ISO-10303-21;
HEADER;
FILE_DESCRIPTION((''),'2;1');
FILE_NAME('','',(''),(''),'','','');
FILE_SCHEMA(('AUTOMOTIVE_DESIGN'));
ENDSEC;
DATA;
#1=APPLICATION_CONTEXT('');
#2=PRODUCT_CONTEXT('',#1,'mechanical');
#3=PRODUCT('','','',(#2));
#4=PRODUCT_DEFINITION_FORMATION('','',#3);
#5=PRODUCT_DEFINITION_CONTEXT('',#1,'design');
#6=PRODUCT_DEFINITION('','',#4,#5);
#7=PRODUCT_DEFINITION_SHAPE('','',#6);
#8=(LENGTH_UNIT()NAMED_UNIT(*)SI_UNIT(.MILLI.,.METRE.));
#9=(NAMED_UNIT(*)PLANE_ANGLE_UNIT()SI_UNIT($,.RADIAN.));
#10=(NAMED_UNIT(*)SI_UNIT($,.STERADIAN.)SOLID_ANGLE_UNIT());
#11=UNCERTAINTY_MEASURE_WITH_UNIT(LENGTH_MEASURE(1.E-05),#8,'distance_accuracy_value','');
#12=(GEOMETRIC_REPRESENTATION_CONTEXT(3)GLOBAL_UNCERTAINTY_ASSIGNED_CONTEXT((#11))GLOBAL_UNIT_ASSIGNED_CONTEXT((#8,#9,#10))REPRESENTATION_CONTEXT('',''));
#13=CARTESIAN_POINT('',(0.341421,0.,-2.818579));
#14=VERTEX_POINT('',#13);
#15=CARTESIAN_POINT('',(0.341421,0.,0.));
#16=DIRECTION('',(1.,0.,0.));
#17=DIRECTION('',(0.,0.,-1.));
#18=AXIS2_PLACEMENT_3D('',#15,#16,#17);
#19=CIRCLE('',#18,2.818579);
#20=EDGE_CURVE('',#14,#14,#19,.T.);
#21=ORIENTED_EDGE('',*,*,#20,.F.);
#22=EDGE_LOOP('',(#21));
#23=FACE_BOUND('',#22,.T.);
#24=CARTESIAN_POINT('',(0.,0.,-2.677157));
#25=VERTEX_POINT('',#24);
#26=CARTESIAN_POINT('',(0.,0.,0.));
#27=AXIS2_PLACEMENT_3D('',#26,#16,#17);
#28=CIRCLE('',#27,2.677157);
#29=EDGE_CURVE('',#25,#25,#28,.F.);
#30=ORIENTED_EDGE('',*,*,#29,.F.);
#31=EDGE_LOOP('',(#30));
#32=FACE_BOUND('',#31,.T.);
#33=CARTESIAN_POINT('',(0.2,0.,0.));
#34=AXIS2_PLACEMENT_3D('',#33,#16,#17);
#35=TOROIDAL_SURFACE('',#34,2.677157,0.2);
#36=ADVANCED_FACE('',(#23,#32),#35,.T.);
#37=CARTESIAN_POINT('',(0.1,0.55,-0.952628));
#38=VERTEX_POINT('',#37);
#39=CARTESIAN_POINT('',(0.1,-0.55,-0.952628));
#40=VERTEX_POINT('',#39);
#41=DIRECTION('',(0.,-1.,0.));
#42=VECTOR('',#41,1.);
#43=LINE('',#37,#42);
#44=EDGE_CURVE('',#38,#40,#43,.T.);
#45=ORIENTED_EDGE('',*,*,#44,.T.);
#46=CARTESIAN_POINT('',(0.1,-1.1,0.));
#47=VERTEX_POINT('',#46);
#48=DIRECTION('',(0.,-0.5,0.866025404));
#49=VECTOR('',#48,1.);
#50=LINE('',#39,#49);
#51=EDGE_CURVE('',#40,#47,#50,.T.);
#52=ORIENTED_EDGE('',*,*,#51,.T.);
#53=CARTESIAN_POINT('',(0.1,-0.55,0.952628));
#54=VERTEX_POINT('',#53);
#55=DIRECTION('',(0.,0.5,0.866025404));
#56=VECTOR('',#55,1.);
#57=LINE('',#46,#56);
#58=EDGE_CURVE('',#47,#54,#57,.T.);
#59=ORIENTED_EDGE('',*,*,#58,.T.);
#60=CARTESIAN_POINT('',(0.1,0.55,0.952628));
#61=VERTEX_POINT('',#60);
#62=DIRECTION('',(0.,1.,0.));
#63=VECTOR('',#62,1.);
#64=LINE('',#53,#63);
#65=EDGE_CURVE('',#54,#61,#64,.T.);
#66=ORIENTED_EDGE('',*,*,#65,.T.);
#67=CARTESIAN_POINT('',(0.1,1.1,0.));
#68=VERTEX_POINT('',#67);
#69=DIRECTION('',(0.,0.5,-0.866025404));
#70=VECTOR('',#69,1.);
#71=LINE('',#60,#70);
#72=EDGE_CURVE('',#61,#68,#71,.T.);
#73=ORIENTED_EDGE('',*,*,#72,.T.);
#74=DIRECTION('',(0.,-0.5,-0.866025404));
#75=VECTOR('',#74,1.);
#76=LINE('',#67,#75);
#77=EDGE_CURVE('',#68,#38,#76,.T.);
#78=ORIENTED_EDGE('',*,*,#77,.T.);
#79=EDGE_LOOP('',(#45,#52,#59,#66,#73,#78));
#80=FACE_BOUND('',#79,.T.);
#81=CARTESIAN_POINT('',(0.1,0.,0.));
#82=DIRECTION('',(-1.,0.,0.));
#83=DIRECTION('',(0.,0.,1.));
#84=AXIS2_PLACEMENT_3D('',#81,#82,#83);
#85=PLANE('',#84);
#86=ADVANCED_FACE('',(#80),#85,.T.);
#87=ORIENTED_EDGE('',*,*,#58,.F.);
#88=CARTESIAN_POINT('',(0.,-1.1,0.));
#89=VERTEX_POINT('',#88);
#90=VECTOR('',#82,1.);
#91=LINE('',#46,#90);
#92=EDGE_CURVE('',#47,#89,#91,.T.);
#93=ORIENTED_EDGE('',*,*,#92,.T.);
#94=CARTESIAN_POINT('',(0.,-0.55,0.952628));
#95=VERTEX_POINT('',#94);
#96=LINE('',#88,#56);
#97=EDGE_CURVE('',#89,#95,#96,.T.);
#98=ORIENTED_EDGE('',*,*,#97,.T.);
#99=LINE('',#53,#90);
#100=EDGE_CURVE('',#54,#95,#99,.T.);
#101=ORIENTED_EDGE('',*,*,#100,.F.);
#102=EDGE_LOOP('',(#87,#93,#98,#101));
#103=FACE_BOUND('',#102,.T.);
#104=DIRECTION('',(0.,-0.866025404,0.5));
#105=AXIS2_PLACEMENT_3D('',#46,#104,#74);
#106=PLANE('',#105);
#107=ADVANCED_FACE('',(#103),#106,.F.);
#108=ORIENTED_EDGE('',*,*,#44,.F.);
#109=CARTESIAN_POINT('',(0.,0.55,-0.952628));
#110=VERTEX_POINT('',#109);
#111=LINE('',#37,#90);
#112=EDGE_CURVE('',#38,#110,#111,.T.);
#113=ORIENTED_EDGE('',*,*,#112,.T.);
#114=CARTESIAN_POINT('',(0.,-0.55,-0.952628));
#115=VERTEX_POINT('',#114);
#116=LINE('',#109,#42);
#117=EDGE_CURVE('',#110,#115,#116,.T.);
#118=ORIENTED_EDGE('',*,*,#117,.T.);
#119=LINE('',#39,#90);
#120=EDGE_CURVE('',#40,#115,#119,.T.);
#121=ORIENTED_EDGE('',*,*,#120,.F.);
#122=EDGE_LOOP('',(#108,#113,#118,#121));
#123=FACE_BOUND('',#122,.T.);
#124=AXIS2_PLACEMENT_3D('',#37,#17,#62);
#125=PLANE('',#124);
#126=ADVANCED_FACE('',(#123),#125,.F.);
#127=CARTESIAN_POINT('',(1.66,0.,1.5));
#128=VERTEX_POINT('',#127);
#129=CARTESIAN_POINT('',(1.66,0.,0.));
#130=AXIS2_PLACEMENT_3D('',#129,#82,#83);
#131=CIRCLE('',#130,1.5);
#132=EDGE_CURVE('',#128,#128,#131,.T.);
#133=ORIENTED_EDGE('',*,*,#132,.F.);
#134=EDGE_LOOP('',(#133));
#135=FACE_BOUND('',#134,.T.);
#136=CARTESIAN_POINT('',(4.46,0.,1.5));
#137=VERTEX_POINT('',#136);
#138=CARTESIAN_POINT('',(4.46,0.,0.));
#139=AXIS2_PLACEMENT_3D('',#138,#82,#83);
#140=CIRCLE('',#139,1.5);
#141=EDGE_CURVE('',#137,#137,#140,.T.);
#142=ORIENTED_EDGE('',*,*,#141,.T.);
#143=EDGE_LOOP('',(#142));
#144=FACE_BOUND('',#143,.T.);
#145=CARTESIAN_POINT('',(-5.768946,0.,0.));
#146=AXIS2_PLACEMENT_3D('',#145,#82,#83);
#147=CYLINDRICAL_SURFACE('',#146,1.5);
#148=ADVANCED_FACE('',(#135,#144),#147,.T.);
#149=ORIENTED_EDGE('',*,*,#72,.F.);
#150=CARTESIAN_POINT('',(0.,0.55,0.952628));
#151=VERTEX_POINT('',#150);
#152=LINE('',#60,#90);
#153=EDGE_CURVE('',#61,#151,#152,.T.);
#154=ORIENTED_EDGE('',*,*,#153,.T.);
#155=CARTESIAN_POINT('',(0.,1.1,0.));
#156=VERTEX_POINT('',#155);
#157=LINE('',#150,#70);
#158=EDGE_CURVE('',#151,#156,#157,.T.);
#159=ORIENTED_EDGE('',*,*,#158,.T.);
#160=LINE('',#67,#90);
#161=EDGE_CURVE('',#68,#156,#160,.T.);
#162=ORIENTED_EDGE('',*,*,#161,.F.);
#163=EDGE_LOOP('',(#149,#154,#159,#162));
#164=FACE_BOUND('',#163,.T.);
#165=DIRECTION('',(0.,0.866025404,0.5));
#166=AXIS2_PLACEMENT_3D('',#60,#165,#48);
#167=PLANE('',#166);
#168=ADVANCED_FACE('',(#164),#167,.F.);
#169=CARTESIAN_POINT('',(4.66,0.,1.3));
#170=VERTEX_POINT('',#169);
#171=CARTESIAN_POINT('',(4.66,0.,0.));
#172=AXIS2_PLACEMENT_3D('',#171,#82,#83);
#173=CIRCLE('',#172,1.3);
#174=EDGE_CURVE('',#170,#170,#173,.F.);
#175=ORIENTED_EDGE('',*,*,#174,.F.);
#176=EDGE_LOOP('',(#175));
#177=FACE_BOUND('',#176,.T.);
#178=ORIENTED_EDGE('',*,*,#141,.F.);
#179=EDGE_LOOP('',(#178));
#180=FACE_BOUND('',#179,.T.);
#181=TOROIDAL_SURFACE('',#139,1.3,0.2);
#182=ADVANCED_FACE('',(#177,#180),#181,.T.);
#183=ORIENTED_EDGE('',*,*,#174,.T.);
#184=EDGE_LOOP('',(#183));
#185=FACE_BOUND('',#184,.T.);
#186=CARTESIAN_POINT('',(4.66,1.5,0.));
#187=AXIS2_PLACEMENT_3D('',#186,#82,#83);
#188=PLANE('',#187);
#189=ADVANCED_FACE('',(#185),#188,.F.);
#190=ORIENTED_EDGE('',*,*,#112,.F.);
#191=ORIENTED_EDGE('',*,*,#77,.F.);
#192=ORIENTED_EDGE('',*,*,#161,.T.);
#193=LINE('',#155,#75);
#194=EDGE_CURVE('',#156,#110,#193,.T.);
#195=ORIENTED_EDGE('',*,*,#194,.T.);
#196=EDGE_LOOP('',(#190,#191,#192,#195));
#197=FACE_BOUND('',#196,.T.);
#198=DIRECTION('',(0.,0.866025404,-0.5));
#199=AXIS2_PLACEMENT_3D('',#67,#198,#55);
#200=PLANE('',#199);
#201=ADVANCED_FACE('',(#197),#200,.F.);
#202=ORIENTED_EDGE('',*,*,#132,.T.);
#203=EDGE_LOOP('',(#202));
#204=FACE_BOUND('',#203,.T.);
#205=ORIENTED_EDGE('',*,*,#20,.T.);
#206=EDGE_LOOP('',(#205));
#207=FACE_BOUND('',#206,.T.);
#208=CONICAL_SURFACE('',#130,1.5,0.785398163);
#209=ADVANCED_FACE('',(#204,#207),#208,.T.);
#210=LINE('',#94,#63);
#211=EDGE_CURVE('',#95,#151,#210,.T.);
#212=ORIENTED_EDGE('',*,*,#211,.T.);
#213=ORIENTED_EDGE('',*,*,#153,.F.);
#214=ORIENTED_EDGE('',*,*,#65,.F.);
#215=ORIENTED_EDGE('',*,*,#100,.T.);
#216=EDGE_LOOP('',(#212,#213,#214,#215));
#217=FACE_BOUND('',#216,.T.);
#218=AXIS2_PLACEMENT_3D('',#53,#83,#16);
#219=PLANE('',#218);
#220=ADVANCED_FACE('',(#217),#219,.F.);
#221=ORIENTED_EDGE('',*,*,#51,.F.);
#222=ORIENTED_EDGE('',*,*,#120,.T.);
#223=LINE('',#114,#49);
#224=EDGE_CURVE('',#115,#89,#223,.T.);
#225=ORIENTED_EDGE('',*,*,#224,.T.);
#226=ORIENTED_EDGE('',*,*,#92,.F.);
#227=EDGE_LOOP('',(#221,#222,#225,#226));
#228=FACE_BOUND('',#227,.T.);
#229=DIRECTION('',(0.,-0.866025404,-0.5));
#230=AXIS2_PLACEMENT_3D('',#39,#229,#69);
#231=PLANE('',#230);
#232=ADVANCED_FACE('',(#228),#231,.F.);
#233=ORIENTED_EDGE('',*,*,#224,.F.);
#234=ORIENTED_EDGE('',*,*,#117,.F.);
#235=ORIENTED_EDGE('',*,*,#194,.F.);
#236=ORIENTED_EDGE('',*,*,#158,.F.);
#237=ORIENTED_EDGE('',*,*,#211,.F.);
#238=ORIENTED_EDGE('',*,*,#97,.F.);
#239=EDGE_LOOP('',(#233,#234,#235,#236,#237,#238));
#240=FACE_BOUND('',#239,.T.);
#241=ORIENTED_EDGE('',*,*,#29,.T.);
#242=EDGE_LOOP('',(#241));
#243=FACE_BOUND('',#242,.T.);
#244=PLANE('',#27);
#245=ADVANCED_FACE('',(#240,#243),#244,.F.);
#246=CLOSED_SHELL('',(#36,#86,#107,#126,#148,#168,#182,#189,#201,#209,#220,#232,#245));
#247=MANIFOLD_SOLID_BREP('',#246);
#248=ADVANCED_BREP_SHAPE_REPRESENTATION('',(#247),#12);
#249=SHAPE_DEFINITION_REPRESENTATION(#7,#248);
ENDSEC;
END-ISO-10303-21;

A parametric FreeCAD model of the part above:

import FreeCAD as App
import Part
import Sketcher
Q = App.Units.Quantity


def edges_at(feature, points):
    """Names of the edges that pass closest to the given points."""
    edges = feature.Shape.Edges
    near = lambda p: min(range(len(edges)), key=lambda i: edges[i].distToShape(Part.Vertex(*p))[0])
    return sorted({f"Edge{near(p) + 1}" for p in points})

doc = App.newDocument("Part")
params = doc.addObject("Spreadsheet::Sheet", "Params")
for row, (alias, value) in enumerate([
    ("sketch1_width", "3 mm"),
    ("sketch1_height", "1.5 mm"),
    ("sketch1_width2", "4.66 mm"),
    ("revolution_angle", "360 deg"),
    ("sketch2_width", "1.1 mm"),
    ("sketch2_length", "1.1 mm"),
    ("pocket1_length", "0.1 mm"),
    ("fillet_radius", "0.2 mm"),
], start=1):
    params.set(f"A{row}", alias)
    params.set(f"B{row}", "=" + value)
    params.setAlias(f"B{row}", alias)

body = doc.addObject("PartDesign::Body", "Body")

# Sketch on XY plane
sketch1 = body.newObject("Sketcher::SketchObject", "Sketch")
sketch1.AttachmentSupport = (doc.getObject("XY_Plane"), [""])
sketch1.MapMode = "FlatFace"
sketch1.addGeometry([
    Part.LineSegment(App.Vector(0, 3.2, 0), App.Vector(0, 0, 0)),  # 0
    Part.LineSegment(App.Vector(0, 0, 0), App.Vector(4.7, 0, 0)),  # 1
    Part.LineSegment(App.Vector(4.7, 0, 0), App.Vector(4.7, 1.5, 0)),  # 2
    Part.LineSegment(App.Vector(4.7, 1.5, 0), App.Vector(1.7, 1.5, 0)),  # 3
    Part.LineSegment(App.Vector(1.7, 1.5, 0), App.Vector(0, 3.2, 0)),  # 4
], False)
sketch1.addConstraint([
    Sketcher.Constraint("Coincident", 0, 2, 1, 1),
    Sketcher.Constraint("Coincident", 1, 2, 2, 1),
    Sketcher.Constraint("Coincident", 2, 2, 3, 1),
    Sketcher.Constraint("Coincident", 3, 2, 4, 1),
    Sketcher.Constraint("Coincident", 4, 2, 0, 1),
    Sketcher.Constraint("Vertical", 0),
    Sketcher.Constraint("Horizontal", 1),
    Sketcher.Constraint("Vertical", 2),
    Sketcher.Constraint("Horizontal", 3),
    Sketcher.Constraint("Coincident", 0, 2, -1, 1),
    Sketcher.Constraint("DistanceX", 3, 2, 3, 1, Q("3 mm")),
    Sketcher.Constraint("Angle", 4, Q("135 deg")),
    Sketcher.Constraint("DistanceY", 2, 1, 2, 2, Q("1.5 mm")),
    Sketcher.Constraint("DistanceX", 1, 1, 1, 2, Q("4.66 mm")),
])
sketch1.setExpression("Constraints[10]", "Params.sketch1_width")
sketch1.setExpression("Constraints[12]", "Params.sketch1_height")
sketch1.setExpression("Constraints[13]", "Params.sketch1_width2")
revolution = body.newObject("PartDesign::Revolution", "Revolution")
revolution.Profile = sketch1
revolution.ReferenceAxis = (sketch1, ["H_Axis"])
revolution.setExpression("Angle", "Params.revolution_angle")

# Sketch on YZ plane
sketch2 = body.newObject("Sketcher::SketchObject", "Sketch001")
sketch2.AttachmentSupport = (doc.getObject("YZ_Plane"), [""])
sketch2.MapMode = "FlatFace"
sketch2.addGeometry([
    Part.LineSegment(App.Vector(-1.1, 0, 0), App.Vector(-0.6, 1, 0)),  # 0
    Part.LineSegment(App.Vector(-0.6, 1, 0), App.Vector(0.6, 1, 0)),  # 1
    Part.LineSegment(App.Vector(0.6, 1, 0), App.Vector(1.1, 0, 0)),  # 2
    Part.LineSegment(App.Vector(1.1, 0, 0), App.Vector(0.6, -1, 0)),  # 3
    Part.LineSegment(App.Vector(0.6, -1, 0), App.Vector(-0.6, -1, 0)),  # 4
    Part.LineSegment(App.Vector(-0.6, -1, 0), App.Vector(-1.1, 0, 0)),  # 5
], False)
sketch2.addConstraint([
    Sketcher.Constraint("Coincident", 0, 2, 1, 1),
    Sketcher.Constraint("Coincident", 1, 2, 2, 1),
    Sketcher.Constraint("Coincident", 2, 2, 3, 1),
    Sketcher.Constraint("Coincident", 3, 2, 4, 1),
    Sketcher.Constraint("Coincident", 4, 2, 5, 1),
    Sketcher.Constraint("Coincident", 5, 2, 0, 1),
    Sketcher.Constraint("Horizontal", 1),
    Sketcher.Constraint("Horizontal", 4),
    Sketcher.Constraint("Symmetric", 0, 2, 3, 2, -1, 1),
    Sketcher.Constraint("Symmetric", 2, 2, 5, 2, -1, 1),
    Sketcher.Constraint("PointOnObject", 2, 2, -1),
    Sketcher.Constraint("Parallel", 2, 5),
    Sketcher.Constraint("Vertical", 1, 2, 3, 2),
    Sketcher.Constraint("Angle", 0, Q("60 deg")),
    Sketcher.Constraint("DistanceX", 1, 1, 1, 2, Q("1.1 mm")),
    Sketcher.Constraint("Distance", 0, Q("1.1 mm")),
])
sketch2.setExpression("Constraints[14]", "Params.sketch2_width")
sketch2.setExpression("Constraints[15]", "Params.sketch2_length")
pocket1 = body.newObject("PartDesign::Pocket", "Pocket")
pocket1.Profile = sketch2
pocket1.setExpression("Length", "Params.pocket1_length")
pocket1.Reversed = True
doc.recompute()

fillet = body.newObject("PartDesign::Fillet", "Fillet")
fillet.Base = (pocket1, edges_at(pocket1, [(4.66, 0, -1.5), (0, 0, -3.16)]))
fillet.setExpression("Radius", "Params.fillet_radius")

doc.recompute()
